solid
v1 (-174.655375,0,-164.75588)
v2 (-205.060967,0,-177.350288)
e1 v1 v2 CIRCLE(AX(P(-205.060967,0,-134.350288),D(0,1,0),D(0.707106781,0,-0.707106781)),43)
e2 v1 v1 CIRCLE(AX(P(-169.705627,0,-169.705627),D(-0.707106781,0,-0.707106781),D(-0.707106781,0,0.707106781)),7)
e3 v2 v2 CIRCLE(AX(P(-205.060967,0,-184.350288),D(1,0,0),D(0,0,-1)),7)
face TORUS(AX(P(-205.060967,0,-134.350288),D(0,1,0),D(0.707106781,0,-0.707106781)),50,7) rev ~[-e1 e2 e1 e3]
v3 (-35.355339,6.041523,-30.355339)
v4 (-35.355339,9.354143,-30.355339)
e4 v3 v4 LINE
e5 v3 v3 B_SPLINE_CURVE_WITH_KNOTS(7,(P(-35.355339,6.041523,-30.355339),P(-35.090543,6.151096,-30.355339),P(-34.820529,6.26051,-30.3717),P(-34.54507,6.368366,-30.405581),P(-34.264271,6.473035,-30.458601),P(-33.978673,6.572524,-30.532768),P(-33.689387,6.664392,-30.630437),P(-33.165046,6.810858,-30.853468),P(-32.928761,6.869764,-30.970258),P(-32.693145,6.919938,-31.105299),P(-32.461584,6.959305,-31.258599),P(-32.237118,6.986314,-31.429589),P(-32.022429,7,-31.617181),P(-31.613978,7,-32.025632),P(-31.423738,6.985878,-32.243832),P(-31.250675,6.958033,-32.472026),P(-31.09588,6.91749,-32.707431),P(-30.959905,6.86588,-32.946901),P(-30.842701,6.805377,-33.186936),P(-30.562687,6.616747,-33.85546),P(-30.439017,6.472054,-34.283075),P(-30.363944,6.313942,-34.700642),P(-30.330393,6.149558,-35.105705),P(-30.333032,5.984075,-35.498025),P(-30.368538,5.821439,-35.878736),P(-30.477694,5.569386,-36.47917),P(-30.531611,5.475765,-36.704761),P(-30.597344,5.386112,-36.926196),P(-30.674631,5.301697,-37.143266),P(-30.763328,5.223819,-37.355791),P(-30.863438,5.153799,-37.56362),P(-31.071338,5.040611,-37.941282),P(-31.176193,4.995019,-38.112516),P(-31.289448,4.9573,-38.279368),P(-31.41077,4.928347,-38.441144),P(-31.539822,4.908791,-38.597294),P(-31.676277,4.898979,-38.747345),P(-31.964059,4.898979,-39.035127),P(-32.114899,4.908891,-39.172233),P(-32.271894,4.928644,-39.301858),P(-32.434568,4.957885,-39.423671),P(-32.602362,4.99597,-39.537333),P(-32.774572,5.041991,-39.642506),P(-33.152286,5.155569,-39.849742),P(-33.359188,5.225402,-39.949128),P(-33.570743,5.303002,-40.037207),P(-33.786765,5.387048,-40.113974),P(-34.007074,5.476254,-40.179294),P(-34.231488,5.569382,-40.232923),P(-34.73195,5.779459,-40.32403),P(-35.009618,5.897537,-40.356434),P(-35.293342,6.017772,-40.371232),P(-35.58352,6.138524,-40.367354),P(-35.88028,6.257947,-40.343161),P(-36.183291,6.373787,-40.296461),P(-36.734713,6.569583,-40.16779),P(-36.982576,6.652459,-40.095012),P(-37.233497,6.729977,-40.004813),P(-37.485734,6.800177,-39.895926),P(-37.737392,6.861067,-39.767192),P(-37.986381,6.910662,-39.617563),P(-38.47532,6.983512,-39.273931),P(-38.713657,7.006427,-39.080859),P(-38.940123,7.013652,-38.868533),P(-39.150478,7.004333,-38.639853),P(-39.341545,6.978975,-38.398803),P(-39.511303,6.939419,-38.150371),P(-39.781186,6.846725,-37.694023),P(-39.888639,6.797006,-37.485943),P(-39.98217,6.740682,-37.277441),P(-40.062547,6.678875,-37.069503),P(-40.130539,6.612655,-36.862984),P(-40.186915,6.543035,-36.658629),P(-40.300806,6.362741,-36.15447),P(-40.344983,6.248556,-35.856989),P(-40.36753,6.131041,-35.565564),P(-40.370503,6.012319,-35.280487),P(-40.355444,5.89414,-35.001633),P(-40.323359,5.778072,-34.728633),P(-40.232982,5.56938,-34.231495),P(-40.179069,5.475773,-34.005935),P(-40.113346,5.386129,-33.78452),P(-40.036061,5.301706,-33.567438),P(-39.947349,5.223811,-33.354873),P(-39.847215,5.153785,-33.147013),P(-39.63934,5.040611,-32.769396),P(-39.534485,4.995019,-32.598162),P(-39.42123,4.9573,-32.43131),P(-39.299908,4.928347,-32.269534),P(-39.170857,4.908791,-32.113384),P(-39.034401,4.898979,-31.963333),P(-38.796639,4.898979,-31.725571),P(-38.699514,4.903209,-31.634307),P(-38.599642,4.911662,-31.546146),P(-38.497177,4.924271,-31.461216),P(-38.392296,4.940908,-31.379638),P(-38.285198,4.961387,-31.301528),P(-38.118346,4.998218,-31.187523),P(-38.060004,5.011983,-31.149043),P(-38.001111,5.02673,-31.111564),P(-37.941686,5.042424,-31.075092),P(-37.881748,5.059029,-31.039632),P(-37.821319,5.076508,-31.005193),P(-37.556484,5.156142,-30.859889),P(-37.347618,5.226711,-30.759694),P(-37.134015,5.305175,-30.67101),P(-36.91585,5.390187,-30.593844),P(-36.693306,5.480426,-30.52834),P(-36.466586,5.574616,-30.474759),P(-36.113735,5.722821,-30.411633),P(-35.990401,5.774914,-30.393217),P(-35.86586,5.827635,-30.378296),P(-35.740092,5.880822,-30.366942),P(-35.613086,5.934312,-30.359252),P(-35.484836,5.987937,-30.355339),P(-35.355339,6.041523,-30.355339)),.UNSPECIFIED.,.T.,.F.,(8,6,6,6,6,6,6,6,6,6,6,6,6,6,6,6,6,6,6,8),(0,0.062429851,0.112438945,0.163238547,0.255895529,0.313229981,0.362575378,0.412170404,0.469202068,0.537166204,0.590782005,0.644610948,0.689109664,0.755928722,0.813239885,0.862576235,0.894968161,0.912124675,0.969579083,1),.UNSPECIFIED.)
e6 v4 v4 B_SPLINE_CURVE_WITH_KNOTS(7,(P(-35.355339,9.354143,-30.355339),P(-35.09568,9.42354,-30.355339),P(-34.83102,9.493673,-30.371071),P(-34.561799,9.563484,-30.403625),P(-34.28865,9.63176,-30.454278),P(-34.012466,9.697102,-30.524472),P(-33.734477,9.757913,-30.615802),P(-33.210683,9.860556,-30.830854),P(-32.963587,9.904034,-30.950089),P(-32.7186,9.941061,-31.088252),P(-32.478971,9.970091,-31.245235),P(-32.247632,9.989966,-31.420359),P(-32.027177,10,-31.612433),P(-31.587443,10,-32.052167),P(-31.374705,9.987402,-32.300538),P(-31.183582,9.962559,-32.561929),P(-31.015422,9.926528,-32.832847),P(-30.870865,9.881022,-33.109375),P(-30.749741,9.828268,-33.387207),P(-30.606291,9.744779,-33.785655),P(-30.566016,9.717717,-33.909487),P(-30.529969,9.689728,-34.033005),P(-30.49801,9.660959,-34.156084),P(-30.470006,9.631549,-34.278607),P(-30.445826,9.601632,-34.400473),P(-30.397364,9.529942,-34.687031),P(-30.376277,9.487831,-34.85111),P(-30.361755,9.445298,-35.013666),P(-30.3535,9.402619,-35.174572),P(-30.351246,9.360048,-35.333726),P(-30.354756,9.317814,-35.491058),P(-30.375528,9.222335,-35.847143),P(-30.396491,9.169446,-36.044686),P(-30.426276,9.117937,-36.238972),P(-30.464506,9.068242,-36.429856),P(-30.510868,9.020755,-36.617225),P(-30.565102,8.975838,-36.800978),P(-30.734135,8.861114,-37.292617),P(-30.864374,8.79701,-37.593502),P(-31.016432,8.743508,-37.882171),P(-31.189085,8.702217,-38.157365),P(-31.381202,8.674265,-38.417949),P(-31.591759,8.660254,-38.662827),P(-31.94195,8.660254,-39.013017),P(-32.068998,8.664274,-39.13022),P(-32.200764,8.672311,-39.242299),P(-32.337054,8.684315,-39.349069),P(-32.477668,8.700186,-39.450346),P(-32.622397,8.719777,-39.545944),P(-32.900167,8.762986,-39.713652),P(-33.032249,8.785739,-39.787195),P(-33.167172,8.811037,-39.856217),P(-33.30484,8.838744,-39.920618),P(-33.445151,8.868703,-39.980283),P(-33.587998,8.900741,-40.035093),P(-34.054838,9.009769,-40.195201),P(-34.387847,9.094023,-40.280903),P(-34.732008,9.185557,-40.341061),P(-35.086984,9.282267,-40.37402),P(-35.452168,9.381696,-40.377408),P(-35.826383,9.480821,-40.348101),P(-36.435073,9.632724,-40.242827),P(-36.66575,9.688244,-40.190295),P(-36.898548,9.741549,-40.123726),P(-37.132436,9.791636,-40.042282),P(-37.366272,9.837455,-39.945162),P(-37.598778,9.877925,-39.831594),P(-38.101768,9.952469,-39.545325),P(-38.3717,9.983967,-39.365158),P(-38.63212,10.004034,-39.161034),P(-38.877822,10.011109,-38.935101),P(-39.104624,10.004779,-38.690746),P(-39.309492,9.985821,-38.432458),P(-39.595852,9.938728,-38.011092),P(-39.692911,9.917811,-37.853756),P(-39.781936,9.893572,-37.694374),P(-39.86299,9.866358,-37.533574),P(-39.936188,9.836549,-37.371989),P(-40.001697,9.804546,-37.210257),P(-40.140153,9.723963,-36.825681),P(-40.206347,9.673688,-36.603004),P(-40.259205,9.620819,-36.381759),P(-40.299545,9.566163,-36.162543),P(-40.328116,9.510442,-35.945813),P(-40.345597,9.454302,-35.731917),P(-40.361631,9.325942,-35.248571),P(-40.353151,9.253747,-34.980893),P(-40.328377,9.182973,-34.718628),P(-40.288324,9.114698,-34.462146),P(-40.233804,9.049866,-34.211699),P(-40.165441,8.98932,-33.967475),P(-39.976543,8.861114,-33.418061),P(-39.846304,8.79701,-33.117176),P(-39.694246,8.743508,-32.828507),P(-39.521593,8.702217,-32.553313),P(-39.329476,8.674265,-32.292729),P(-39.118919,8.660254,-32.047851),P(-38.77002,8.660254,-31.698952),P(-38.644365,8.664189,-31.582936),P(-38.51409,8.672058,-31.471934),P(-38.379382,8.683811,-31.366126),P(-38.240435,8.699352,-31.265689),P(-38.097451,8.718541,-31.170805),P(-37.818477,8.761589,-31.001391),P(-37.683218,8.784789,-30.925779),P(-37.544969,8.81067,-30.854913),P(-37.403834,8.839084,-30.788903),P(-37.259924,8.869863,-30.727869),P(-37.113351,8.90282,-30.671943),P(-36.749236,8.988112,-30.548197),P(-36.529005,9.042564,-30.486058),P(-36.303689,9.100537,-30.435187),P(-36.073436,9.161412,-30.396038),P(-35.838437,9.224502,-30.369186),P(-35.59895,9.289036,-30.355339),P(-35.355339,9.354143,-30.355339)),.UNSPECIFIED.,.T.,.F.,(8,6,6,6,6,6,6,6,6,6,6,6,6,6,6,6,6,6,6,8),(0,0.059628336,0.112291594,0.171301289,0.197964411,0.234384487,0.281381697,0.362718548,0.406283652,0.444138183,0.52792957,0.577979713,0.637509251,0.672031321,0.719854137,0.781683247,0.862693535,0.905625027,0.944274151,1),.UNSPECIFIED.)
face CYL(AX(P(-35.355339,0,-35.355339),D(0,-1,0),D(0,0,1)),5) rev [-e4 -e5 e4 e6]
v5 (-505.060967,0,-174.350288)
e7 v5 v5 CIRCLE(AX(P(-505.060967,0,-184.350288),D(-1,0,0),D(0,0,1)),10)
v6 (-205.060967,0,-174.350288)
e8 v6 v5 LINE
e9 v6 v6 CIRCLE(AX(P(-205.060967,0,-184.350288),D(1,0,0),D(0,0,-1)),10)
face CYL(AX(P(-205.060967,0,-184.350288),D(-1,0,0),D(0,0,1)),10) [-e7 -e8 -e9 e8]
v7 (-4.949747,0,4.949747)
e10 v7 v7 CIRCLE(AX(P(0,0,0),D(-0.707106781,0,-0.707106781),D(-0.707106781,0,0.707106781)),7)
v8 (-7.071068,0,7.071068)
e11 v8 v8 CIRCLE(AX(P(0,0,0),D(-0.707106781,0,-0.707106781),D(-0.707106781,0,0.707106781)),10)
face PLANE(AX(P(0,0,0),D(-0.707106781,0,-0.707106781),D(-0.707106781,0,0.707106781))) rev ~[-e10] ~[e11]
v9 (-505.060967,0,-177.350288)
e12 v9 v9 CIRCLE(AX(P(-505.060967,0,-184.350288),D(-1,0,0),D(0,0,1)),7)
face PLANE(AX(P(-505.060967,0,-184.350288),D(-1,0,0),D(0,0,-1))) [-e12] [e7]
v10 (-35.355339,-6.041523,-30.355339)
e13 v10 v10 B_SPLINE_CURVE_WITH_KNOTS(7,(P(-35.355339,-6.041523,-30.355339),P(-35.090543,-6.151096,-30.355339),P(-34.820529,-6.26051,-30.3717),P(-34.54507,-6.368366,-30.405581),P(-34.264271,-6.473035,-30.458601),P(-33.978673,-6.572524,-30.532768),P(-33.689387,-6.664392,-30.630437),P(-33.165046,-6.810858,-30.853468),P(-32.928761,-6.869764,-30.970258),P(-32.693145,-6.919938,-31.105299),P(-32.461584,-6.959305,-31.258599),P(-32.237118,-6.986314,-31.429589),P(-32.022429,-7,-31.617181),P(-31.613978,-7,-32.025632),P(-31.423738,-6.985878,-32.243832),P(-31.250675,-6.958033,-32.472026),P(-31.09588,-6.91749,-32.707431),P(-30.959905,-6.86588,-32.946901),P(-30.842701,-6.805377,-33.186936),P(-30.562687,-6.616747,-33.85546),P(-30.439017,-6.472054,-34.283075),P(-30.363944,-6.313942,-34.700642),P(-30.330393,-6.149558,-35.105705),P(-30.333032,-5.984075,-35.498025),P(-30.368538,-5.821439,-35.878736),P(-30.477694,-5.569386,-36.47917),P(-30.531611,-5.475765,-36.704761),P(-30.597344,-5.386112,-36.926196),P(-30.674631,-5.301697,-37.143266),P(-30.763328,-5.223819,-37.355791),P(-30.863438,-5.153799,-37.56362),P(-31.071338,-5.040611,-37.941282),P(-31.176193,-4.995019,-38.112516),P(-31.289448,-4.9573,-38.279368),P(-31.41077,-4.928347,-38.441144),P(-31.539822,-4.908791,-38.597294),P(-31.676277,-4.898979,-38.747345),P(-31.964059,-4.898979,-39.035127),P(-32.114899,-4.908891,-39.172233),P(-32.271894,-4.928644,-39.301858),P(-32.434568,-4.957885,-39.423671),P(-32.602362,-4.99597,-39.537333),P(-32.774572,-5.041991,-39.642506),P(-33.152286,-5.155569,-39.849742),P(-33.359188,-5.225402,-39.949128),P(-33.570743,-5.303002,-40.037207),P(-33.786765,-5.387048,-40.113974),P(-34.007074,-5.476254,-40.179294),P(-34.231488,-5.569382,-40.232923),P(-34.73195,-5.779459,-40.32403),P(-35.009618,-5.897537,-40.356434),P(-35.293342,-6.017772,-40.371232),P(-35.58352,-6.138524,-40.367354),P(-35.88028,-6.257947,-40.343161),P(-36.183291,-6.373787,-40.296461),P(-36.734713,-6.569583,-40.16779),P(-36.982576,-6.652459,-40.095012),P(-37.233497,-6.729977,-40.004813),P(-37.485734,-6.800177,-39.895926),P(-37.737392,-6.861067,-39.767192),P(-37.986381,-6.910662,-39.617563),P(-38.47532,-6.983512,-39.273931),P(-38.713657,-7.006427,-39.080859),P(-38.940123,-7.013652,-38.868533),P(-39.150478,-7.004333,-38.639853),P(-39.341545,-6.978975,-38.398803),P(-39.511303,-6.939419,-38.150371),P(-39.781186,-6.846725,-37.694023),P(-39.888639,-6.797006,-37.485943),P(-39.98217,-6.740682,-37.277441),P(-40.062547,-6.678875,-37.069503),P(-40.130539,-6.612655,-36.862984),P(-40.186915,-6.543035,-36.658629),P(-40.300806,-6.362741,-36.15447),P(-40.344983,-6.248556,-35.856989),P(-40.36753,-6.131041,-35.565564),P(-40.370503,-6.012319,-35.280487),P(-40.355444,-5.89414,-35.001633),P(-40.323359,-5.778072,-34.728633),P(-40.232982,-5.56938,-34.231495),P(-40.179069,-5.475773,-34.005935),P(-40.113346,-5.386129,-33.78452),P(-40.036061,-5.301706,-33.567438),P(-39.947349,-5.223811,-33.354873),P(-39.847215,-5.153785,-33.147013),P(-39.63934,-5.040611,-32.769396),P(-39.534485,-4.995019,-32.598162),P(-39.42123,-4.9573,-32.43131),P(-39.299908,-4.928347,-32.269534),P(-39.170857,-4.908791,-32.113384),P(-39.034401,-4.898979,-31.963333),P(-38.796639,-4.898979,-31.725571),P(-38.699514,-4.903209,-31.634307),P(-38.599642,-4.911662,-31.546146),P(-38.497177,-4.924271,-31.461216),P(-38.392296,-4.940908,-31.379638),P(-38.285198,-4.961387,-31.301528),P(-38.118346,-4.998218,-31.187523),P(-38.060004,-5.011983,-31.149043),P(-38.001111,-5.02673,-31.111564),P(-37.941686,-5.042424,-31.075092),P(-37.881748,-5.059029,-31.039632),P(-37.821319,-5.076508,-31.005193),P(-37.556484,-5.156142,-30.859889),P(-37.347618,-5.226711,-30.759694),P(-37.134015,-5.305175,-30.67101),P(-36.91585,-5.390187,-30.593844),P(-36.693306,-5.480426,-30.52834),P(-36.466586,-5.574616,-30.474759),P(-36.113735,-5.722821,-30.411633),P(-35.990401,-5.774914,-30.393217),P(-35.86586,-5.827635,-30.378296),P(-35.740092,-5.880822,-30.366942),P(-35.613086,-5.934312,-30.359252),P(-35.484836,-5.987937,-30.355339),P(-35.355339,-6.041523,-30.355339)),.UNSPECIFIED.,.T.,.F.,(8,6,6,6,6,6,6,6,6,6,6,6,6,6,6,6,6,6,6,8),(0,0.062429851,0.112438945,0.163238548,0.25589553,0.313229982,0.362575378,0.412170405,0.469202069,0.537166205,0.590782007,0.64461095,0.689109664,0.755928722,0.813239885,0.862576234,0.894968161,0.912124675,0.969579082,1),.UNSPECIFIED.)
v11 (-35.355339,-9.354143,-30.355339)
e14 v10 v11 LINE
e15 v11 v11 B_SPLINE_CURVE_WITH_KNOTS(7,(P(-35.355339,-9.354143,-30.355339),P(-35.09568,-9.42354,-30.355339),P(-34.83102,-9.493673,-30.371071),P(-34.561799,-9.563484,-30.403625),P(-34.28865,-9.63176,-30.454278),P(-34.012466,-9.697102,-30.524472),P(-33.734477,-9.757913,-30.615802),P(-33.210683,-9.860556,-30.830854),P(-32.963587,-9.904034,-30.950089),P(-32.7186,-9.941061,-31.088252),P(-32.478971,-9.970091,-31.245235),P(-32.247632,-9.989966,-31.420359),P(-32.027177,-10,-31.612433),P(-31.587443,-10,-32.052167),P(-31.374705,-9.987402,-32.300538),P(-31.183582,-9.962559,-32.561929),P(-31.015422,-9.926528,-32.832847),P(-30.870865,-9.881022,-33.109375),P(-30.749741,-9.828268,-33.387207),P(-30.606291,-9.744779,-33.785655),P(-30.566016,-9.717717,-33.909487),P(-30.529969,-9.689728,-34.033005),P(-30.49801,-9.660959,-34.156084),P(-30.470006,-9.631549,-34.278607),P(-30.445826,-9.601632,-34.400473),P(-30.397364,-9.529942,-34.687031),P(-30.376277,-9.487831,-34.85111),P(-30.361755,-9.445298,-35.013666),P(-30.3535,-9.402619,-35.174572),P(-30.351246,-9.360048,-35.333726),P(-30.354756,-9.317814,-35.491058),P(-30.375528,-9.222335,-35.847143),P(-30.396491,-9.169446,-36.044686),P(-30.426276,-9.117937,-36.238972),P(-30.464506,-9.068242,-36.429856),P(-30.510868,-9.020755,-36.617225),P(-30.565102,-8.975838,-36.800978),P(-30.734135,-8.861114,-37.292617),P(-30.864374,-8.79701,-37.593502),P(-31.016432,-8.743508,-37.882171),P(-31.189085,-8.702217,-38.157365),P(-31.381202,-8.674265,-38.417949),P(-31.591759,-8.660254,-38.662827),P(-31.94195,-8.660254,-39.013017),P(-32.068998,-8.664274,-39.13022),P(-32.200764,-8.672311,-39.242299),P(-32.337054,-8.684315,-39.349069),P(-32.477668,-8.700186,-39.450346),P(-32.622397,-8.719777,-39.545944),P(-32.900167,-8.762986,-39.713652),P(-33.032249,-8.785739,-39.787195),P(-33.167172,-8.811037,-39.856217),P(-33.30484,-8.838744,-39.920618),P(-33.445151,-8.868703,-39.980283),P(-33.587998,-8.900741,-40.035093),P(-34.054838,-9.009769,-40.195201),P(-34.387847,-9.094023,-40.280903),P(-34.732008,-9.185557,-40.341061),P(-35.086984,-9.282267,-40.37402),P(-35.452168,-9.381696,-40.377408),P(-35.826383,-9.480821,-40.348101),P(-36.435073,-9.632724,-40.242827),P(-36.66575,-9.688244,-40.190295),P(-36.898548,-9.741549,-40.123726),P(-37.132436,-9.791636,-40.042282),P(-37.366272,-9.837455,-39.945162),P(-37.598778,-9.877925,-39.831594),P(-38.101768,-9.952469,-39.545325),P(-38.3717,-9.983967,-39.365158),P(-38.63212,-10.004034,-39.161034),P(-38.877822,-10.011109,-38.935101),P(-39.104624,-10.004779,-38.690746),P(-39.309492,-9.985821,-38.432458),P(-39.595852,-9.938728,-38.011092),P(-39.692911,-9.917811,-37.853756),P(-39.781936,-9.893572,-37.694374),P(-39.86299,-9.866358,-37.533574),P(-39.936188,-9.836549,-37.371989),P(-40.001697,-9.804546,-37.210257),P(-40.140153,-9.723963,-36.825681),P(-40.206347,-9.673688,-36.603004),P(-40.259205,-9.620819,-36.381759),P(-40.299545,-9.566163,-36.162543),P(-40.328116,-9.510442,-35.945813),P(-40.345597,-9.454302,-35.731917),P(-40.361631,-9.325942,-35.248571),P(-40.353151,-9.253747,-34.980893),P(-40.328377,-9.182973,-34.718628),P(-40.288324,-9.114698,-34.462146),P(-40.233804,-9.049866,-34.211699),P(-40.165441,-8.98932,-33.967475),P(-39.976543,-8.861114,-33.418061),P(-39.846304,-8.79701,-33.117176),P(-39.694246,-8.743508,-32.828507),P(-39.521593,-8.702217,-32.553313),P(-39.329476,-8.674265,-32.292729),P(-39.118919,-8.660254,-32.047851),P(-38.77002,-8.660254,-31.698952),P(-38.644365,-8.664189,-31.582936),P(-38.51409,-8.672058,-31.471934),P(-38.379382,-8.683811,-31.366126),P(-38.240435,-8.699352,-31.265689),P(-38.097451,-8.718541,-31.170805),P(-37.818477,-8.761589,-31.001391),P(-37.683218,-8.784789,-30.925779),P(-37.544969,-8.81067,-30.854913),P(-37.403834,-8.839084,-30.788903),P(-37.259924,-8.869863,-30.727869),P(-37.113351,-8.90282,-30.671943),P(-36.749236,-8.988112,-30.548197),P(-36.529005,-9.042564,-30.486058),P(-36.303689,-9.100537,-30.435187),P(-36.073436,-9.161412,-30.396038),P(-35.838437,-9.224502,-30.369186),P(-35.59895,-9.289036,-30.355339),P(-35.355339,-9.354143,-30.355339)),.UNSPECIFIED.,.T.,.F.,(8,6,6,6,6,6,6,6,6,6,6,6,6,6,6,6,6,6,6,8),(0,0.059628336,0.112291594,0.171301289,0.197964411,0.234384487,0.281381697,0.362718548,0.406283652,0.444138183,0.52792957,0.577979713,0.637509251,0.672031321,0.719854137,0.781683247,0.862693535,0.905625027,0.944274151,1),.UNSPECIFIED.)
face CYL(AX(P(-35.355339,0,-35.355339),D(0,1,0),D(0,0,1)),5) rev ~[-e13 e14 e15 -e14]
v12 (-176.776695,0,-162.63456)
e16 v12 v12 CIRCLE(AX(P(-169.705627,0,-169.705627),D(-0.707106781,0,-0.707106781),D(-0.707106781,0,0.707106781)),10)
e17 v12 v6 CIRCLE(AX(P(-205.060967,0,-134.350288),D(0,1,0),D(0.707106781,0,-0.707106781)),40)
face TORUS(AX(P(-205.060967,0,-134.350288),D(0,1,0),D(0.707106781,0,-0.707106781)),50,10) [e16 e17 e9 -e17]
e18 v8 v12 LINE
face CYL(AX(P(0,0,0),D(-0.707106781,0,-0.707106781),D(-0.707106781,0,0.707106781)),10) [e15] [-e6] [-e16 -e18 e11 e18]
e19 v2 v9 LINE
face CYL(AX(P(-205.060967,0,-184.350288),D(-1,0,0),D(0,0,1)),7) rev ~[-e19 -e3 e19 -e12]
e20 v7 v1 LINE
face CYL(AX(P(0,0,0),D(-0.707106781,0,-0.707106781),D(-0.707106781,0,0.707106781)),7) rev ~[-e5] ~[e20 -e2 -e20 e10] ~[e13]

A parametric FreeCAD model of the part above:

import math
import FreeCAD as App
import Part
import Sketcher
Q = App.Units.Quantity

doc = App.newDocument("Part")
body = doc.addObject("PartDesign::Body", "Body")

# Sketch on an angled plane
sketch1 = body.newObject("Sketcher::SketchObject", "Sketch")
sketch1.Placement = App.Placement(App.Vector(0, 0, 0), App.Rotation(App.Vector(-0.707106781, 0, 0.707106781), App.Vector(0, 0.999999999, 0), App.Vector(-0.707106781, 0, -0.707106781), "ZXY"))
sketch1.addGeometry([
    Part.Circle(App.Vector(0, 0, 0), App.Vector(0, 0, 1), 10),
    Part.Circle(App.Vector(0, 0, 0), App.Vector(0, 0, 1), 7),
], False)
sketch1.addConstraint([
    Sketcher.Constraint("Coincident", 0, 3, -1, 1),
    Sketcher.Constraint("Coincident", 1, 3, -1, 1),
    Sketcher.Constraint("Diameter", 0, Q("20 mm")),
    Sketcher.Constraint("Diameter", 1, Q("14 mm")),
])

# Sketch on XZ plane
sketch2 = body.newObject("Sketcher::SketchObject", "Sketch001")
sketch2.AttachmentSupport = (doc.getObject("XZ_Plane"), [""])
sketch2.MapMode = "FlatFace"
sketch2.addGeometry([
    Part.LineSegment(App.Vector(0, 0, 0), App.Vector(-170, -170, 0)),
    Part.ArcOfCircle(Part.Circle(App.Vector(-205, -134, 0), App.Vector(0, 0, 1), 50), math.radians(-90), math.radians(-45)),
    Part.LineSegment(App.Vector(-205, -184, 0), App.Vector(-505, -184, 0)),
], False)
sketch2.addConstraint([
    Sketcher.Constraint("Tangent", 0, 2, 1, 2),
    Sketcher.Constraint("Tangent", 1, 1, 2, 1),
    Sketcher.Constraint("Horizontal", 2),
    Sketcher.Constraint("Coincident", 0, 1, -1, 1),
    Sketcher.Constraint("Radius", 1, Q("50 mm")),
    Sketcher.Constraint("DistanceX", 2, 2, 2, 1, Q("300 mm")),
    Sketcher.Constraint("Angle", 0, Q("-135 deg")),
    Sketcher.Constraint("Distance", 0, Q("240 mm")),
])
doc.recompute()

additivepipe = body.newObject("PartDesign::AdditivePipe", "AdditivePipe")
additivepipe.Profile = sketch1
additivepipe.Spine = (sketch2, ["Edge1", "Edge2", "Edge3"])

# Sketch on XZ plane
sketch3 = body.newObject("Sketcher::SketchObject", "Sketch002")
sketch3.AttachmentSupport = (doc.getObject("XZ_Plane"), [""])
sketch3.MapMode = "FlatFace"
sketch3.addGeometry(Part.Circle(App.Vector(-35, -35, 0), App.Vector(0, 0, 1), 5), False)
sketch3.addConstraint([
    Sketcher.Constraint("Diameter", 0, Q("10 mm")),
    Sketcher.Constraint("DistanceX", 0, 3, -1, 1, Q("35.355339 mm")),
    Sketcher.Constraint("DistanceY", 0, 3, -1, 1, Q("35.355339 mm")),
])
pocket1 = body.newObject("PartDesign::Pocket", "Pocket")
pocket1.Profile = sketch3
pocket1.Type = "ThroughAll"
pocket1.Midplane = True

doc.recompute()
